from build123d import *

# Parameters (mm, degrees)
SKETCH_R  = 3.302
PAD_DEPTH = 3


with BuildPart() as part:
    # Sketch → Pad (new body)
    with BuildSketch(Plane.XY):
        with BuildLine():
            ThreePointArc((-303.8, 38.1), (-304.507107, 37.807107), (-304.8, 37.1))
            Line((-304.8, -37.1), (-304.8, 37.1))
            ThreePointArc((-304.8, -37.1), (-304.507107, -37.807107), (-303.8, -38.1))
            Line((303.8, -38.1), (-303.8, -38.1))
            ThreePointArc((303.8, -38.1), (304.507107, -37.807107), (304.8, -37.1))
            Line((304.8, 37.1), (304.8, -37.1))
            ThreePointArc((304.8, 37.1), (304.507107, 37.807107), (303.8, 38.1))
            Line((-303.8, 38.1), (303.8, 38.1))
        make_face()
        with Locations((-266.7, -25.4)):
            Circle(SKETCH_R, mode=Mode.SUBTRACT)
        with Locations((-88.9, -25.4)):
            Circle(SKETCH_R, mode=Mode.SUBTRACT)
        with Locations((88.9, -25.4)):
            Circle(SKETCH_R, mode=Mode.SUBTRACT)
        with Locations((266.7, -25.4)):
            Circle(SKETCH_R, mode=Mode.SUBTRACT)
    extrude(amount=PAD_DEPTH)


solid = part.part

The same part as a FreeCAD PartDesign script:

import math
import FreeCAD as App
import Part
import Sketcher
Q = App.Units.Quantity

doc = App.newDocument("Part")
params = doc.addObject("Spreadsheet::Sheet", "Params")
for row, (alias, value) in enumerate([
    ("sketch1_radius", "0.999999 mm"),
    ("sketch1_width", "607.6 mm"),
    ("sketch1_height", "74.2 mm"),
    ("pad1_length", "3 mm"),
], start=1):
    params.set(f"A{row}", alias)
    params.set(f"B{row}", "=" + value)
    params.setAlias(f"B{row}", alias)

body = doc.addObject("PartDesign::Body", "Body")

sketch1 = doc.addObject("Sketcher::SketchObject", "Sketch")
body.addObject(sketch1)
sketch1.AttachmentSupport = (doc.XY_Plane, [""])
sketch1.MapMode = "FlatFace"
sketch1.addGeometry(Part.ArcOfCircle(Part.Circle(App.Vector(-303.8, 37.1, 0), App.Vector(0, 0, 1), 1), math.radians(90), math.radians(180)), False)
sketch1.addGeometry(Part.LineSegment(App.Vector(-304.8, 37.1, 0), App.Vector(-304.8, -37.1, 0)), False)
sketch1.addGeometry(Part.ArcOfCircle(Part.Circle(App.Vector(-303.8, -37.1, 0), App.Vector(0, 0, 1), 1), math.radians(180), math.radians(270)), False)
sketch1.addGeometry(Part.LineSegment(App.Vector(-303.8, -38.1, 0), App.Vector(303.8, -38.1, 0)), False)
sketch1.addGeometry(Part.ArcOfCircle(Part.Circle(App.Vector(303.8, -37.1, 0), App.Vector(0, 0, 1), 1), math.radians(-90), math.radians(0)), False)
sketch1.addGeometry(Part.LineSegment(App.Vector(304.8, -37.1, 0), App.Vector(304.8, 37.1, 0)), False)
sketch1.addGeometry(Part.ArcOfCircle(Part.Circle(App.Vector(303.8, 37.1, 0), App.Vector(0, 0, 1), 1), math.radians(0), math.radians(90)), False)
sketch1.addGeometry(Part.LineSegment(App.Vector(303.8, 38.1, 0), App.Vector(-303.8, 38.1, 0)), False)
sketch1.addGeometry(Part.Circle(App.Vector(-266.7, -25.4, 0), App.Vector(0, 0, 1), 3.3), False)
sketch1.addGeometry(Part.Circle(App.Vector(-88.9, -25.4, 0), App.Vector(0, 0, 1), 3.3), False)
sketch1.addGeometry(Part.Circle(App.Vector(88.9, -25.4, 0), App.Vector(0, 0, 1), 3.3), False)
sketch1.addGeometry(Part.Circle(App.Vector(266.7, -25.4, 0), App.Vector(0, 0, 1), 3.3), False)
sketch1.addConstraint(Sketcher.Constraint("Tangent", 0, 2, 1, 1))
sketch1.addConstraint(Sketcher.Constraint("Tangent", 1, 2, 2, 1))
sketch1.addConstraint(Sketcher.Constraint("Tangent", 2, 2, 3, 1))
sketch1.addConstraint(Sketcher.Constraint("Tangent", 3, 2, 4, 1))
sketch1.addConstraint(Sketcher.Constraint("Tangent", 4, 2, 5, 1))
sketch1.addConstraint(Sketcher.Constraint("Tangent", 5, 2, 6, 1))
sketch1.addConstraint(Sketcher.Constraint("Tangent", 6, 2, 7, 1))
sketch1.addConstraint(Sketcher.Constraint("Tangent", 7, 2, 0, 1))
sketch1.addConstraint(Sketcher.Constraint("Vertical", 1))
sketch1.addConstraint(Sketcher.Constraint("Horizontal", 3))
sketch1.addConstraint(Sketcher.Constraint("Vertical", 5))
sketch1.addConstraint(Sketcher.Constraint("Horizontal", 7))
sketch1.addConstraint(Sketcher.Constraint("Equal", 0, 2))
sketch1.addConstraint(Sketcher.Constraint("Equal", 2, 4))
sketch1.addConstraint(Sketcher.Constraint("Equal", 4, 6))
sketch1.addConstraint(Sketcher.Constraint("Equal", 8, 9))
sketch1.addConstraint(Sketcher.Constraint("Equal", 9, 10))
sketch1.addConstraint(Sketcher.Constraint("Equal", 10, 11))
sketch1.addConstraint(Sketcher.Constraint("Symmetric", 0, 3, 4, 3, -1, 1))
sketch1.addConstraint(Sketcher.Constraint("Symmetric", 9, 3, 10, 3, -2))
sketch1.addConstraint(Sketcher.Constraint("Symmetric", 8, 3, 11, 3, -2))
sketch1.addConstraint(Sketcher.Constraint("Horizontal", 8, 3, 9, 3))
sketch1.addConstraint(Sketcher.Constraint("Radius", 0, Q("0.999999 mm")))
sketch1.addConstraint(Sketcher.Constraint("Diameter", 8, Q("6.604 mm")))
sketch1.addConstraint(Sketcher.Constraint("DistanceX", 3, 1, 3, 2, Q("607.6 mm")))
sketch1.addConstraint(Sketcher.Constraint("DistanceY", 1, 2, 1, 1, Q("74.2 mm")))
sketch1.addConstraint(Sketcher.Constraint("DistanceX", 8, 3, -1, 1, Q("266.7 mm")))
sketch1.addConstraint(Sketcher.Constraint("DistanceY", 8, 3, -1, 1, Q("25.4 mm")))
sketch1.addConstraint(Sketcher.Constraint("DistanceX", 9, 3, -1, 1, Q("88.9 mm")))
sketch1.setExpression("Constraints[22]", "Params.sketch1_radius")
sketch1.setExpression("Constraints[24]", "Params.sketch1_width")
sketch1.setExpression("Constraints[25]", "Params.sketch1_height")
pad1 = doc.addObject("PartDesign::Pad", "Pad")
body.addObject(pad1)
pad1.Profile = sketch1
pad1.setExpression("Length", "Params.pad1_length")

doc.recompute()
